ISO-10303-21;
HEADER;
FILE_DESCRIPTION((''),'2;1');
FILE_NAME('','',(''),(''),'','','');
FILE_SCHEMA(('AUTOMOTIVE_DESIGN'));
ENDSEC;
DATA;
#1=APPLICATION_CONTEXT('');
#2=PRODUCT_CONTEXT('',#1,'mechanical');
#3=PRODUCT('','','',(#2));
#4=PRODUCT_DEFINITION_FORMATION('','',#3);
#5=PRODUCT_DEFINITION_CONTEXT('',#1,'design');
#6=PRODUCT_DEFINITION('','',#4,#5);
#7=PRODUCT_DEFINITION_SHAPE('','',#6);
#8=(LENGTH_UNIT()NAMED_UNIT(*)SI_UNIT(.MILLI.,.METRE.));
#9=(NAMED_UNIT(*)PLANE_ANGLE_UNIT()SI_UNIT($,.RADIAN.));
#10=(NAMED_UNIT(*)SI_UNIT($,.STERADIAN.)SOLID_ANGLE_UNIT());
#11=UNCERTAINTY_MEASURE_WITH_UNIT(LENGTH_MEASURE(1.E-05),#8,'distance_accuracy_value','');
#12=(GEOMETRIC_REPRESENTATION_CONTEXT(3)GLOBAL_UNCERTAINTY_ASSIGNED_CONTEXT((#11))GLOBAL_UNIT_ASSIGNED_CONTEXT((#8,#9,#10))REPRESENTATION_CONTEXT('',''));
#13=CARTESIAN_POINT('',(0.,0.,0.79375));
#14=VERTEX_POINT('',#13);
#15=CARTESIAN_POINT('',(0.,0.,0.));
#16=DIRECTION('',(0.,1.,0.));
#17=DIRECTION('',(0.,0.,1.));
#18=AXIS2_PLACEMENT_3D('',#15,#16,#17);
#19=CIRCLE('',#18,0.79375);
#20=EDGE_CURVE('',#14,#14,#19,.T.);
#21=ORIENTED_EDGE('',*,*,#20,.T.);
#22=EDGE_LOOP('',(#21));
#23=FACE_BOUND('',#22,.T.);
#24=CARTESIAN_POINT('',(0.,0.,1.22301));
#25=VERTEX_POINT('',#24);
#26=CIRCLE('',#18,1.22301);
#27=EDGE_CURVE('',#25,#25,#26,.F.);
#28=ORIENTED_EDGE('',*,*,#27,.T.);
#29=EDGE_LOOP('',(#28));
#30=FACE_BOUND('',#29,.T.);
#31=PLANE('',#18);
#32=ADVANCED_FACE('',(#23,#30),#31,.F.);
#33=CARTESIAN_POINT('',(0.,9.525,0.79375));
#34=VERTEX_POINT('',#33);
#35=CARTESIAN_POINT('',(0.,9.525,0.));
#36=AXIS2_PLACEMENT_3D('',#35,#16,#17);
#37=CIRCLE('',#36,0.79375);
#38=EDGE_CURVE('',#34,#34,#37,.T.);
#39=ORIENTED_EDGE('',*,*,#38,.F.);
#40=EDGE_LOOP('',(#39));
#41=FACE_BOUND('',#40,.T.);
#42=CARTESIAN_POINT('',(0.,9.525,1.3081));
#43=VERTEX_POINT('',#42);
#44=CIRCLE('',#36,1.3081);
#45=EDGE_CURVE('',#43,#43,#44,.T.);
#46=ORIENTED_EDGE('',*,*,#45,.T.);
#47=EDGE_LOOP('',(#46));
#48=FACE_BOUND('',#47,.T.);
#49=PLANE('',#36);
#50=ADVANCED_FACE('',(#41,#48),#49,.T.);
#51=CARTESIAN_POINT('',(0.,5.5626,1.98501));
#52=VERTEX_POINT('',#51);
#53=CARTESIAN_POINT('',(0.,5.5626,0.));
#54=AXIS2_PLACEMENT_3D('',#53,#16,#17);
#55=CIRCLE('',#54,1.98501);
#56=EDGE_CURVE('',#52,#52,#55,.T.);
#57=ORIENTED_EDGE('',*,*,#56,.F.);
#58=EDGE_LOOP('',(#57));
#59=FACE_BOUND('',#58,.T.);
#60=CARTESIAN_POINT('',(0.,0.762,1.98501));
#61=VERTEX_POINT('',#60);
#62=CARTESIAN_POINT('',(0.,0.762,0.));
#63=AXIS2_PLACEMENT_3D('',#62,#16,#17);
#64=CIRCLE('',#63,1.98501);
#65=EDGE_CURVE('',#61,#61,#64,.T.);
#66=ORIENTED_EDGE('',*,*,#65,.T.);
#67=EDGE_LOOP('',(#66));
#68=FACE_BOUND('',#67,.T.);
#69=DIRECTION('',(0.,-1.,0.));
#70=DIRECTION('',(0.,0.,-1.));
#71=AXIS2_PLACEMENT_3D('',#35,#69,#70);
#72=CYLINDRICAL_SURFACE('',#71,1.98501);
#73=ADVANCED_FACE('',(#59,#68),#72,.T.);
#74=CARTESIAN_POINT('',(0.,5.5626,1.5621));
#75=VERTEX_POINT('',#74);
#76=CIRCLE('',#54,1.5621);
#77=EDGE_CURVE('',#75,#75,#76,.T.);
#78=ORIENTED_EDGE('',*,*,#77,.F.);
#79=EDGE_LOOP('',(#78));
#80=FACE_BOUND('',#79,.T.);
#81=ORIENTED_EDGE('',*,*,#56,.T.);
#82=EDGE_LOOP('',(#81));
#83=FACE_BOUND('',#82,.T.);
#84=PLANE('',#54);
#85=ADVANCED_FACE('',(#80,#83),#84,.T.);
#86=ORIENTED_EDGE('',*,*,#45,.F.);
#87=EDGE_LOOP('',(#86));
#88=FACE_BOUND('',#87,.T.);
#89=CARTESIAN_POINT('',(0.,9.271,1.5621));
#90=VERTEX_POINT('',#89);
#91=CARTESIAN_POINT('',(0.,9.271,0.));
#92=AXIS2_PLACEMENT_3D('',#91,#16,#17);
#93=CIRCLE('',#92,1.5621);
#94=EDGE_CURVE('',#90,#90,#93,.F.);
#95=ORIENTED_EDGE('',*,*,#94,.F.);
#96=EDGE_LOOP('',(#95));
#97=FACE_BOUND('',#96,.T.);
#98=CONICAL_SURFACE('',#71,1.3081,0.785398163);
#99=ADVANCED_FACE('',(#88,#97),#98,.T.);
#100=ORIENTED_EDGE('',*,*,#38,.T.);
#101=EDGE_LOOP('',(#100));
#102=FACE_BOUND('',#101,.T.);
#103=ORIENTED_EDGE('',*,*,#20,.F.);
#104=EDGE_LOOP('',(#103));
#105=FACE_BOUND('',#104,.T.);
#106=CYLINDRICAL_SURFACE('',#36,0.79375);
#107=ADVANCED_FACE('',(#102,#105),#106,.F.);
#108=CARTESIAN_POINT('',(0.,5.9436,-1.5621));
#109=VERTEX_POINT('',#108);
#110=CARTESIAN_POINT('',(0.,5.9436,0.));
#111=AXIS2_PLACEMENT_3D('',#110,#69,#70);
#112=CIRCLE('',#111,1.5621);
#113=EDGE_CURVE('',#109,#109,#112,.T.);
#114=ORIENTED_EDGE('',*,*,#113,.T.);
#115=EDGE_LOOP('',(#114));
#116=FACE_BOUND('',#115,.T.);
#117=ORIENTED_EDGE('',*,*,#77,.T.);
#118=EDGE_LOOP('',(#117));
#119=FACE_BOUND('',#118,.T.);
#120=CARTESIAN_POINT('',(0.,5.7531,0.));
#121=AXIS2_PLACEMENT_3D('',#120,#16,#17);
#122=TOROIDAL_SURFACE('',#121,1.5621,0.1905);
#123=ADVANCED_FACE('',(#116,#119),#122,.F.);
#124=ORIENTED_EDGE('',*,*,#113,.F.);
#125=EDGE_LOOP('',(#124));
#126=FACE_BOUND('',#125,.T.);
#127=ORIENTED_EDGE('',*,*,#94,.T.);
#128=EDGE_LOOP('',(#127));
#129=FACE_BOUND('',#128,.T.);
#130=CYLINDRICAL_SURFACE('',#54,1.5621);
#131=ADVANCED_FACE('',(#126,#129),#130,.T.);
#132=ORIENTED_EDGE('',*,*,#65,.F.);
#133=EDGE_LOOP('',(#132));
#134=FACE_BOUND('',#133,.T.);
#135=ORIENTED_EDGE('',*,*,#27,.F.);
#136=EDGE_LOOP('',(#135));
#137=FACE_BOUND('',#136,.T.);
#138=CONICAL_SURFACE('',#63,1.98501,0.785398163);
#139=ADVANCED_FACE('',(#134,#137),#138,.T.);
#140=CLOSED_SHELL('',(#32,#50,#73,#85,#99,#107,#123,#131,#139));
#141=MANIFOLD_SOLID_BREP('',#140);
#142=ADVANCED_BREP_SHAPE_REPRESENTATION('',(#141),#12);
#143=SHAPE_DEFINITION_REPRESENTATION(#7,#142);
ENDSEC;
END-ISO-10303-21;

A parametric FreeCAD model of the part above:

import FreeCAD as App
import Part
import Sketcher
Q = App.Units.Quantity


def edges_at(feature, points):
    """Names of the edges that pass closest to the given points."""
    edges = feature.Shape.Edges
    near = lambda p: min(range(len(edges)), key=lambda i: edges[i].distToShape(Part.Vertex(*p))[0])
    return sorted({f"Edge{near(p) + 1}" for p in points})

doc = App.newDocument("Part")
body = doc.addObject("PartDesign::Body", "Body")

sketch1 = doc.addObject("Sketcher::SketchObject", "Sketch")
body.addObject(sketch1)
sketch1.AttachmentSupport = (doc.XZ_Plane, [""])
sketch1.MapMode = "FlatFace"
sketch1.addGeometry(Part.Circle(App.Vector(0, 0, 0), App.Vector(0, 0, 1), 2), False)
sketch1.addConstraint(Sketcher.Constraint("Coincident", 0, 3, -1, 1))
sketch1.addConstraint(Sketcher.Constraint("Diameter", 0, Q("0.1563 in")))
pad1 = doc.addObject("PartDesign::Pad", "Pad")
body.addObject(pad1)
pad1.Profile = sketch1
pad1.Length = Q("0.375 in")
pad1.Reversed = True

sketch2 = doc.addObject("Sketcher::SketchObject", "Sketch001")
body.addObject(sketch2)
sketch2.AttachmentSupport = (doc.XZ_Plane, [""])
sketch2.MapMode = "FlatFace"
sketch2.AttachmentOffset = App.Placement(App.Vector(0, 0, -0.375 * 25.4), App.Rotation())
sketch2.addGeometry(Part.Circle(App.Vector(0, 0, 0), App.Vector(0, 0, 1), 2), False)
sketch2.addGeometry(Part.Circle(App.Vector(0, 0, 0), App.Vector(0, 0, 1), 1.6), False)
sketch2.addConstraint(Sketcher.Constraint("Coincident", 0, 3, -1, 1))
sketch2.addConstraint(Sketcher.Constraint("Coincident", 1, 3, -1, 1))
sketch2.addConstraint(Sketcher.Constraint("Diameter", 1, Q("0.123 in")))
sketch2.addConstraint(Sketcher.Constraint("Diameter", 0, Q("0.1563 in")))
pocket1 = doc.addObject("PartDesign::Pocket", "Pocket")
body.addObject(pocket1)
pocket1.Profile = sketch2
pocket1.Length = Q("0.156 in")
pocket1.Reversed = True
doc.recompute()

chamfer = doc.addObject("PartDesign::Chamfer", "Chamfer")
body.addObject(chamfer)
chamfer.Base = (pocket1, edges_at(pocket1, [(0, 9.525, -1.562)]))
chamfer.Size = Q("0.01 in")
doc.recompute()

chamfer2 = doc.addObject("PartDesign::Chamfer", "Chamfer001")
body.addObject(chamfer2)
chamfer2.Base = (chamfer, edges_at(chamfer, [(0, 0, -1.985)]))
chamfer2.Size = Q("0.03 in")

sketch3 = doc.addObject("Sketcher::SketchObject", "Sketch002")
body.addObject(sketch3)
sketch3.AttachmentSupport = (doc.XY_Plane, [""])
sketch3.MapMode = "FlatFace"
sketch3.addGeometry(Part.Circle(App.Vector(-1.56, 5.75, 0), App.Vector(0, 0, 1), 0.19), False)
sketch3.addConstraint(Sketcher.Constraint("Diameter", 0, Q("0.015 in")))
sketch3.addConstraint(Sketcher.Constraint("DistanceX", 0, 3, -1, 1, Q("0.0615 in")))
sketch3.addConstraint(Sketcher.Constraint("DistanceY", -1, 1, 0, 3, Q("0.2265 in")))
groove = doc.addObject("PartDesign::Groove", "Groove")
body.addObject(groove)
groove.Profile = sketch3
groove.ReferenceAxis = (sketch3, ["V_Axis"])
groove.Angle = 360

sketch4 = doc.addObject("Sketcher::SketchObject", "Sketch003")
body.addObject(sketch4)
sketch4.AttachmentSupport = (doc.XZ_Plane, [""])
sketch4.MapMode = "FlatFace"
sketch4.AttachmentOffset = App.Placement(App.Vector(0, 0, -0.375 * 25.4), App.Rotation())
sketch4.addGeometry(Part.Circle(App.Vector(0, 0, 0), App.Vector(0, 0, 1), 0.8), False)
sketch4.addConstraint(Sketcher.Constraint("Coincident", 0, 3, -1, 1))
sketch4.addConstraint(Sketcher.Constraint("Diameter", 0, Q("0.0625 in")))
doc.recompute()
hole = doc.addObject("PartDesign::Hole", "Hole")
body.addObject(hole)
hole.Profile = sketch4
hole.ThreadType = "None"
hole.Diameter = Q("0.0625 in")
hole.DepthType = "ThroughAll"
hole.Reversed = True

doc.recompute()
